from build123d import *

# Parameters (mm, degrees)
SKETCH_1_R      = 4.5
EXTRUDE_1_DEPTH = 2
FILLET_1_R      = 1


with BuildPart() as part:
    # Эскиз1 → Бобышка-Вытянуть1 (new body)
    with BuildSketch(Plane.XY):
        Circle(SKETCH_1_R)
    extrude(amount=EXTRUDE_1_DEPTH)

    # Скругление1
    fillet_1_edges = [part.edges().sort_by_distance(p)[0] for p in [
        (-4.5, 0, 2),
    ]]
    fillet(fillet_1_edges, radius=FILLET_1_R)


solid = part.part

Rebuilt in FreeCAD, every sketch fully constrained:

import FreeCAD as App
import Part
import Sketcher


def edges_at(feature, points):
    """Names of the edges that pass closest to the given points."""
    edges = feature.Shape.Edges
    near = lambda p: min(range(len(edges)), key=lambda i: edges[i].distToShape(Part.Vertex(*p))[0])
    return sorted({f"Edge{near(p) + 1}" for p in points})

doc = App.newDocument("Part")
body = doc.addObject("PartDesign::Body", "Body")

sketch1 = body.newObject("Sketcher::SketchObject", "Sketch")
sketch1.AttachmentSupport = (doc.getObject("XY_Plane"), [""])
sketch1.MapMode = "FlatFace"
sketch1.addGeometry(Part.Circle(App.Vector(0, 0, 0), App.Vector(0, 0, 1), 4.5), False)
sketch1.addConstraint([
    Sketcher.Constraint("Coincident", 0, 3, -1, 1),
    Sketcher.Constraint("Diameter", 0, 9.0),
])
pad1 = body.newObject("PartDesign::Pad", "Pad")
pad1.Profile = sketch1
pad1.Length = 2
doc.recompute()

fillet = body.newObject("PartDesign::Fillet", "Fillet")
fillet.Base = (pad1, edges_at(pad1, [(-4.5, 0, 2)]))
fillet.Radius = 1

doc.recompute()
